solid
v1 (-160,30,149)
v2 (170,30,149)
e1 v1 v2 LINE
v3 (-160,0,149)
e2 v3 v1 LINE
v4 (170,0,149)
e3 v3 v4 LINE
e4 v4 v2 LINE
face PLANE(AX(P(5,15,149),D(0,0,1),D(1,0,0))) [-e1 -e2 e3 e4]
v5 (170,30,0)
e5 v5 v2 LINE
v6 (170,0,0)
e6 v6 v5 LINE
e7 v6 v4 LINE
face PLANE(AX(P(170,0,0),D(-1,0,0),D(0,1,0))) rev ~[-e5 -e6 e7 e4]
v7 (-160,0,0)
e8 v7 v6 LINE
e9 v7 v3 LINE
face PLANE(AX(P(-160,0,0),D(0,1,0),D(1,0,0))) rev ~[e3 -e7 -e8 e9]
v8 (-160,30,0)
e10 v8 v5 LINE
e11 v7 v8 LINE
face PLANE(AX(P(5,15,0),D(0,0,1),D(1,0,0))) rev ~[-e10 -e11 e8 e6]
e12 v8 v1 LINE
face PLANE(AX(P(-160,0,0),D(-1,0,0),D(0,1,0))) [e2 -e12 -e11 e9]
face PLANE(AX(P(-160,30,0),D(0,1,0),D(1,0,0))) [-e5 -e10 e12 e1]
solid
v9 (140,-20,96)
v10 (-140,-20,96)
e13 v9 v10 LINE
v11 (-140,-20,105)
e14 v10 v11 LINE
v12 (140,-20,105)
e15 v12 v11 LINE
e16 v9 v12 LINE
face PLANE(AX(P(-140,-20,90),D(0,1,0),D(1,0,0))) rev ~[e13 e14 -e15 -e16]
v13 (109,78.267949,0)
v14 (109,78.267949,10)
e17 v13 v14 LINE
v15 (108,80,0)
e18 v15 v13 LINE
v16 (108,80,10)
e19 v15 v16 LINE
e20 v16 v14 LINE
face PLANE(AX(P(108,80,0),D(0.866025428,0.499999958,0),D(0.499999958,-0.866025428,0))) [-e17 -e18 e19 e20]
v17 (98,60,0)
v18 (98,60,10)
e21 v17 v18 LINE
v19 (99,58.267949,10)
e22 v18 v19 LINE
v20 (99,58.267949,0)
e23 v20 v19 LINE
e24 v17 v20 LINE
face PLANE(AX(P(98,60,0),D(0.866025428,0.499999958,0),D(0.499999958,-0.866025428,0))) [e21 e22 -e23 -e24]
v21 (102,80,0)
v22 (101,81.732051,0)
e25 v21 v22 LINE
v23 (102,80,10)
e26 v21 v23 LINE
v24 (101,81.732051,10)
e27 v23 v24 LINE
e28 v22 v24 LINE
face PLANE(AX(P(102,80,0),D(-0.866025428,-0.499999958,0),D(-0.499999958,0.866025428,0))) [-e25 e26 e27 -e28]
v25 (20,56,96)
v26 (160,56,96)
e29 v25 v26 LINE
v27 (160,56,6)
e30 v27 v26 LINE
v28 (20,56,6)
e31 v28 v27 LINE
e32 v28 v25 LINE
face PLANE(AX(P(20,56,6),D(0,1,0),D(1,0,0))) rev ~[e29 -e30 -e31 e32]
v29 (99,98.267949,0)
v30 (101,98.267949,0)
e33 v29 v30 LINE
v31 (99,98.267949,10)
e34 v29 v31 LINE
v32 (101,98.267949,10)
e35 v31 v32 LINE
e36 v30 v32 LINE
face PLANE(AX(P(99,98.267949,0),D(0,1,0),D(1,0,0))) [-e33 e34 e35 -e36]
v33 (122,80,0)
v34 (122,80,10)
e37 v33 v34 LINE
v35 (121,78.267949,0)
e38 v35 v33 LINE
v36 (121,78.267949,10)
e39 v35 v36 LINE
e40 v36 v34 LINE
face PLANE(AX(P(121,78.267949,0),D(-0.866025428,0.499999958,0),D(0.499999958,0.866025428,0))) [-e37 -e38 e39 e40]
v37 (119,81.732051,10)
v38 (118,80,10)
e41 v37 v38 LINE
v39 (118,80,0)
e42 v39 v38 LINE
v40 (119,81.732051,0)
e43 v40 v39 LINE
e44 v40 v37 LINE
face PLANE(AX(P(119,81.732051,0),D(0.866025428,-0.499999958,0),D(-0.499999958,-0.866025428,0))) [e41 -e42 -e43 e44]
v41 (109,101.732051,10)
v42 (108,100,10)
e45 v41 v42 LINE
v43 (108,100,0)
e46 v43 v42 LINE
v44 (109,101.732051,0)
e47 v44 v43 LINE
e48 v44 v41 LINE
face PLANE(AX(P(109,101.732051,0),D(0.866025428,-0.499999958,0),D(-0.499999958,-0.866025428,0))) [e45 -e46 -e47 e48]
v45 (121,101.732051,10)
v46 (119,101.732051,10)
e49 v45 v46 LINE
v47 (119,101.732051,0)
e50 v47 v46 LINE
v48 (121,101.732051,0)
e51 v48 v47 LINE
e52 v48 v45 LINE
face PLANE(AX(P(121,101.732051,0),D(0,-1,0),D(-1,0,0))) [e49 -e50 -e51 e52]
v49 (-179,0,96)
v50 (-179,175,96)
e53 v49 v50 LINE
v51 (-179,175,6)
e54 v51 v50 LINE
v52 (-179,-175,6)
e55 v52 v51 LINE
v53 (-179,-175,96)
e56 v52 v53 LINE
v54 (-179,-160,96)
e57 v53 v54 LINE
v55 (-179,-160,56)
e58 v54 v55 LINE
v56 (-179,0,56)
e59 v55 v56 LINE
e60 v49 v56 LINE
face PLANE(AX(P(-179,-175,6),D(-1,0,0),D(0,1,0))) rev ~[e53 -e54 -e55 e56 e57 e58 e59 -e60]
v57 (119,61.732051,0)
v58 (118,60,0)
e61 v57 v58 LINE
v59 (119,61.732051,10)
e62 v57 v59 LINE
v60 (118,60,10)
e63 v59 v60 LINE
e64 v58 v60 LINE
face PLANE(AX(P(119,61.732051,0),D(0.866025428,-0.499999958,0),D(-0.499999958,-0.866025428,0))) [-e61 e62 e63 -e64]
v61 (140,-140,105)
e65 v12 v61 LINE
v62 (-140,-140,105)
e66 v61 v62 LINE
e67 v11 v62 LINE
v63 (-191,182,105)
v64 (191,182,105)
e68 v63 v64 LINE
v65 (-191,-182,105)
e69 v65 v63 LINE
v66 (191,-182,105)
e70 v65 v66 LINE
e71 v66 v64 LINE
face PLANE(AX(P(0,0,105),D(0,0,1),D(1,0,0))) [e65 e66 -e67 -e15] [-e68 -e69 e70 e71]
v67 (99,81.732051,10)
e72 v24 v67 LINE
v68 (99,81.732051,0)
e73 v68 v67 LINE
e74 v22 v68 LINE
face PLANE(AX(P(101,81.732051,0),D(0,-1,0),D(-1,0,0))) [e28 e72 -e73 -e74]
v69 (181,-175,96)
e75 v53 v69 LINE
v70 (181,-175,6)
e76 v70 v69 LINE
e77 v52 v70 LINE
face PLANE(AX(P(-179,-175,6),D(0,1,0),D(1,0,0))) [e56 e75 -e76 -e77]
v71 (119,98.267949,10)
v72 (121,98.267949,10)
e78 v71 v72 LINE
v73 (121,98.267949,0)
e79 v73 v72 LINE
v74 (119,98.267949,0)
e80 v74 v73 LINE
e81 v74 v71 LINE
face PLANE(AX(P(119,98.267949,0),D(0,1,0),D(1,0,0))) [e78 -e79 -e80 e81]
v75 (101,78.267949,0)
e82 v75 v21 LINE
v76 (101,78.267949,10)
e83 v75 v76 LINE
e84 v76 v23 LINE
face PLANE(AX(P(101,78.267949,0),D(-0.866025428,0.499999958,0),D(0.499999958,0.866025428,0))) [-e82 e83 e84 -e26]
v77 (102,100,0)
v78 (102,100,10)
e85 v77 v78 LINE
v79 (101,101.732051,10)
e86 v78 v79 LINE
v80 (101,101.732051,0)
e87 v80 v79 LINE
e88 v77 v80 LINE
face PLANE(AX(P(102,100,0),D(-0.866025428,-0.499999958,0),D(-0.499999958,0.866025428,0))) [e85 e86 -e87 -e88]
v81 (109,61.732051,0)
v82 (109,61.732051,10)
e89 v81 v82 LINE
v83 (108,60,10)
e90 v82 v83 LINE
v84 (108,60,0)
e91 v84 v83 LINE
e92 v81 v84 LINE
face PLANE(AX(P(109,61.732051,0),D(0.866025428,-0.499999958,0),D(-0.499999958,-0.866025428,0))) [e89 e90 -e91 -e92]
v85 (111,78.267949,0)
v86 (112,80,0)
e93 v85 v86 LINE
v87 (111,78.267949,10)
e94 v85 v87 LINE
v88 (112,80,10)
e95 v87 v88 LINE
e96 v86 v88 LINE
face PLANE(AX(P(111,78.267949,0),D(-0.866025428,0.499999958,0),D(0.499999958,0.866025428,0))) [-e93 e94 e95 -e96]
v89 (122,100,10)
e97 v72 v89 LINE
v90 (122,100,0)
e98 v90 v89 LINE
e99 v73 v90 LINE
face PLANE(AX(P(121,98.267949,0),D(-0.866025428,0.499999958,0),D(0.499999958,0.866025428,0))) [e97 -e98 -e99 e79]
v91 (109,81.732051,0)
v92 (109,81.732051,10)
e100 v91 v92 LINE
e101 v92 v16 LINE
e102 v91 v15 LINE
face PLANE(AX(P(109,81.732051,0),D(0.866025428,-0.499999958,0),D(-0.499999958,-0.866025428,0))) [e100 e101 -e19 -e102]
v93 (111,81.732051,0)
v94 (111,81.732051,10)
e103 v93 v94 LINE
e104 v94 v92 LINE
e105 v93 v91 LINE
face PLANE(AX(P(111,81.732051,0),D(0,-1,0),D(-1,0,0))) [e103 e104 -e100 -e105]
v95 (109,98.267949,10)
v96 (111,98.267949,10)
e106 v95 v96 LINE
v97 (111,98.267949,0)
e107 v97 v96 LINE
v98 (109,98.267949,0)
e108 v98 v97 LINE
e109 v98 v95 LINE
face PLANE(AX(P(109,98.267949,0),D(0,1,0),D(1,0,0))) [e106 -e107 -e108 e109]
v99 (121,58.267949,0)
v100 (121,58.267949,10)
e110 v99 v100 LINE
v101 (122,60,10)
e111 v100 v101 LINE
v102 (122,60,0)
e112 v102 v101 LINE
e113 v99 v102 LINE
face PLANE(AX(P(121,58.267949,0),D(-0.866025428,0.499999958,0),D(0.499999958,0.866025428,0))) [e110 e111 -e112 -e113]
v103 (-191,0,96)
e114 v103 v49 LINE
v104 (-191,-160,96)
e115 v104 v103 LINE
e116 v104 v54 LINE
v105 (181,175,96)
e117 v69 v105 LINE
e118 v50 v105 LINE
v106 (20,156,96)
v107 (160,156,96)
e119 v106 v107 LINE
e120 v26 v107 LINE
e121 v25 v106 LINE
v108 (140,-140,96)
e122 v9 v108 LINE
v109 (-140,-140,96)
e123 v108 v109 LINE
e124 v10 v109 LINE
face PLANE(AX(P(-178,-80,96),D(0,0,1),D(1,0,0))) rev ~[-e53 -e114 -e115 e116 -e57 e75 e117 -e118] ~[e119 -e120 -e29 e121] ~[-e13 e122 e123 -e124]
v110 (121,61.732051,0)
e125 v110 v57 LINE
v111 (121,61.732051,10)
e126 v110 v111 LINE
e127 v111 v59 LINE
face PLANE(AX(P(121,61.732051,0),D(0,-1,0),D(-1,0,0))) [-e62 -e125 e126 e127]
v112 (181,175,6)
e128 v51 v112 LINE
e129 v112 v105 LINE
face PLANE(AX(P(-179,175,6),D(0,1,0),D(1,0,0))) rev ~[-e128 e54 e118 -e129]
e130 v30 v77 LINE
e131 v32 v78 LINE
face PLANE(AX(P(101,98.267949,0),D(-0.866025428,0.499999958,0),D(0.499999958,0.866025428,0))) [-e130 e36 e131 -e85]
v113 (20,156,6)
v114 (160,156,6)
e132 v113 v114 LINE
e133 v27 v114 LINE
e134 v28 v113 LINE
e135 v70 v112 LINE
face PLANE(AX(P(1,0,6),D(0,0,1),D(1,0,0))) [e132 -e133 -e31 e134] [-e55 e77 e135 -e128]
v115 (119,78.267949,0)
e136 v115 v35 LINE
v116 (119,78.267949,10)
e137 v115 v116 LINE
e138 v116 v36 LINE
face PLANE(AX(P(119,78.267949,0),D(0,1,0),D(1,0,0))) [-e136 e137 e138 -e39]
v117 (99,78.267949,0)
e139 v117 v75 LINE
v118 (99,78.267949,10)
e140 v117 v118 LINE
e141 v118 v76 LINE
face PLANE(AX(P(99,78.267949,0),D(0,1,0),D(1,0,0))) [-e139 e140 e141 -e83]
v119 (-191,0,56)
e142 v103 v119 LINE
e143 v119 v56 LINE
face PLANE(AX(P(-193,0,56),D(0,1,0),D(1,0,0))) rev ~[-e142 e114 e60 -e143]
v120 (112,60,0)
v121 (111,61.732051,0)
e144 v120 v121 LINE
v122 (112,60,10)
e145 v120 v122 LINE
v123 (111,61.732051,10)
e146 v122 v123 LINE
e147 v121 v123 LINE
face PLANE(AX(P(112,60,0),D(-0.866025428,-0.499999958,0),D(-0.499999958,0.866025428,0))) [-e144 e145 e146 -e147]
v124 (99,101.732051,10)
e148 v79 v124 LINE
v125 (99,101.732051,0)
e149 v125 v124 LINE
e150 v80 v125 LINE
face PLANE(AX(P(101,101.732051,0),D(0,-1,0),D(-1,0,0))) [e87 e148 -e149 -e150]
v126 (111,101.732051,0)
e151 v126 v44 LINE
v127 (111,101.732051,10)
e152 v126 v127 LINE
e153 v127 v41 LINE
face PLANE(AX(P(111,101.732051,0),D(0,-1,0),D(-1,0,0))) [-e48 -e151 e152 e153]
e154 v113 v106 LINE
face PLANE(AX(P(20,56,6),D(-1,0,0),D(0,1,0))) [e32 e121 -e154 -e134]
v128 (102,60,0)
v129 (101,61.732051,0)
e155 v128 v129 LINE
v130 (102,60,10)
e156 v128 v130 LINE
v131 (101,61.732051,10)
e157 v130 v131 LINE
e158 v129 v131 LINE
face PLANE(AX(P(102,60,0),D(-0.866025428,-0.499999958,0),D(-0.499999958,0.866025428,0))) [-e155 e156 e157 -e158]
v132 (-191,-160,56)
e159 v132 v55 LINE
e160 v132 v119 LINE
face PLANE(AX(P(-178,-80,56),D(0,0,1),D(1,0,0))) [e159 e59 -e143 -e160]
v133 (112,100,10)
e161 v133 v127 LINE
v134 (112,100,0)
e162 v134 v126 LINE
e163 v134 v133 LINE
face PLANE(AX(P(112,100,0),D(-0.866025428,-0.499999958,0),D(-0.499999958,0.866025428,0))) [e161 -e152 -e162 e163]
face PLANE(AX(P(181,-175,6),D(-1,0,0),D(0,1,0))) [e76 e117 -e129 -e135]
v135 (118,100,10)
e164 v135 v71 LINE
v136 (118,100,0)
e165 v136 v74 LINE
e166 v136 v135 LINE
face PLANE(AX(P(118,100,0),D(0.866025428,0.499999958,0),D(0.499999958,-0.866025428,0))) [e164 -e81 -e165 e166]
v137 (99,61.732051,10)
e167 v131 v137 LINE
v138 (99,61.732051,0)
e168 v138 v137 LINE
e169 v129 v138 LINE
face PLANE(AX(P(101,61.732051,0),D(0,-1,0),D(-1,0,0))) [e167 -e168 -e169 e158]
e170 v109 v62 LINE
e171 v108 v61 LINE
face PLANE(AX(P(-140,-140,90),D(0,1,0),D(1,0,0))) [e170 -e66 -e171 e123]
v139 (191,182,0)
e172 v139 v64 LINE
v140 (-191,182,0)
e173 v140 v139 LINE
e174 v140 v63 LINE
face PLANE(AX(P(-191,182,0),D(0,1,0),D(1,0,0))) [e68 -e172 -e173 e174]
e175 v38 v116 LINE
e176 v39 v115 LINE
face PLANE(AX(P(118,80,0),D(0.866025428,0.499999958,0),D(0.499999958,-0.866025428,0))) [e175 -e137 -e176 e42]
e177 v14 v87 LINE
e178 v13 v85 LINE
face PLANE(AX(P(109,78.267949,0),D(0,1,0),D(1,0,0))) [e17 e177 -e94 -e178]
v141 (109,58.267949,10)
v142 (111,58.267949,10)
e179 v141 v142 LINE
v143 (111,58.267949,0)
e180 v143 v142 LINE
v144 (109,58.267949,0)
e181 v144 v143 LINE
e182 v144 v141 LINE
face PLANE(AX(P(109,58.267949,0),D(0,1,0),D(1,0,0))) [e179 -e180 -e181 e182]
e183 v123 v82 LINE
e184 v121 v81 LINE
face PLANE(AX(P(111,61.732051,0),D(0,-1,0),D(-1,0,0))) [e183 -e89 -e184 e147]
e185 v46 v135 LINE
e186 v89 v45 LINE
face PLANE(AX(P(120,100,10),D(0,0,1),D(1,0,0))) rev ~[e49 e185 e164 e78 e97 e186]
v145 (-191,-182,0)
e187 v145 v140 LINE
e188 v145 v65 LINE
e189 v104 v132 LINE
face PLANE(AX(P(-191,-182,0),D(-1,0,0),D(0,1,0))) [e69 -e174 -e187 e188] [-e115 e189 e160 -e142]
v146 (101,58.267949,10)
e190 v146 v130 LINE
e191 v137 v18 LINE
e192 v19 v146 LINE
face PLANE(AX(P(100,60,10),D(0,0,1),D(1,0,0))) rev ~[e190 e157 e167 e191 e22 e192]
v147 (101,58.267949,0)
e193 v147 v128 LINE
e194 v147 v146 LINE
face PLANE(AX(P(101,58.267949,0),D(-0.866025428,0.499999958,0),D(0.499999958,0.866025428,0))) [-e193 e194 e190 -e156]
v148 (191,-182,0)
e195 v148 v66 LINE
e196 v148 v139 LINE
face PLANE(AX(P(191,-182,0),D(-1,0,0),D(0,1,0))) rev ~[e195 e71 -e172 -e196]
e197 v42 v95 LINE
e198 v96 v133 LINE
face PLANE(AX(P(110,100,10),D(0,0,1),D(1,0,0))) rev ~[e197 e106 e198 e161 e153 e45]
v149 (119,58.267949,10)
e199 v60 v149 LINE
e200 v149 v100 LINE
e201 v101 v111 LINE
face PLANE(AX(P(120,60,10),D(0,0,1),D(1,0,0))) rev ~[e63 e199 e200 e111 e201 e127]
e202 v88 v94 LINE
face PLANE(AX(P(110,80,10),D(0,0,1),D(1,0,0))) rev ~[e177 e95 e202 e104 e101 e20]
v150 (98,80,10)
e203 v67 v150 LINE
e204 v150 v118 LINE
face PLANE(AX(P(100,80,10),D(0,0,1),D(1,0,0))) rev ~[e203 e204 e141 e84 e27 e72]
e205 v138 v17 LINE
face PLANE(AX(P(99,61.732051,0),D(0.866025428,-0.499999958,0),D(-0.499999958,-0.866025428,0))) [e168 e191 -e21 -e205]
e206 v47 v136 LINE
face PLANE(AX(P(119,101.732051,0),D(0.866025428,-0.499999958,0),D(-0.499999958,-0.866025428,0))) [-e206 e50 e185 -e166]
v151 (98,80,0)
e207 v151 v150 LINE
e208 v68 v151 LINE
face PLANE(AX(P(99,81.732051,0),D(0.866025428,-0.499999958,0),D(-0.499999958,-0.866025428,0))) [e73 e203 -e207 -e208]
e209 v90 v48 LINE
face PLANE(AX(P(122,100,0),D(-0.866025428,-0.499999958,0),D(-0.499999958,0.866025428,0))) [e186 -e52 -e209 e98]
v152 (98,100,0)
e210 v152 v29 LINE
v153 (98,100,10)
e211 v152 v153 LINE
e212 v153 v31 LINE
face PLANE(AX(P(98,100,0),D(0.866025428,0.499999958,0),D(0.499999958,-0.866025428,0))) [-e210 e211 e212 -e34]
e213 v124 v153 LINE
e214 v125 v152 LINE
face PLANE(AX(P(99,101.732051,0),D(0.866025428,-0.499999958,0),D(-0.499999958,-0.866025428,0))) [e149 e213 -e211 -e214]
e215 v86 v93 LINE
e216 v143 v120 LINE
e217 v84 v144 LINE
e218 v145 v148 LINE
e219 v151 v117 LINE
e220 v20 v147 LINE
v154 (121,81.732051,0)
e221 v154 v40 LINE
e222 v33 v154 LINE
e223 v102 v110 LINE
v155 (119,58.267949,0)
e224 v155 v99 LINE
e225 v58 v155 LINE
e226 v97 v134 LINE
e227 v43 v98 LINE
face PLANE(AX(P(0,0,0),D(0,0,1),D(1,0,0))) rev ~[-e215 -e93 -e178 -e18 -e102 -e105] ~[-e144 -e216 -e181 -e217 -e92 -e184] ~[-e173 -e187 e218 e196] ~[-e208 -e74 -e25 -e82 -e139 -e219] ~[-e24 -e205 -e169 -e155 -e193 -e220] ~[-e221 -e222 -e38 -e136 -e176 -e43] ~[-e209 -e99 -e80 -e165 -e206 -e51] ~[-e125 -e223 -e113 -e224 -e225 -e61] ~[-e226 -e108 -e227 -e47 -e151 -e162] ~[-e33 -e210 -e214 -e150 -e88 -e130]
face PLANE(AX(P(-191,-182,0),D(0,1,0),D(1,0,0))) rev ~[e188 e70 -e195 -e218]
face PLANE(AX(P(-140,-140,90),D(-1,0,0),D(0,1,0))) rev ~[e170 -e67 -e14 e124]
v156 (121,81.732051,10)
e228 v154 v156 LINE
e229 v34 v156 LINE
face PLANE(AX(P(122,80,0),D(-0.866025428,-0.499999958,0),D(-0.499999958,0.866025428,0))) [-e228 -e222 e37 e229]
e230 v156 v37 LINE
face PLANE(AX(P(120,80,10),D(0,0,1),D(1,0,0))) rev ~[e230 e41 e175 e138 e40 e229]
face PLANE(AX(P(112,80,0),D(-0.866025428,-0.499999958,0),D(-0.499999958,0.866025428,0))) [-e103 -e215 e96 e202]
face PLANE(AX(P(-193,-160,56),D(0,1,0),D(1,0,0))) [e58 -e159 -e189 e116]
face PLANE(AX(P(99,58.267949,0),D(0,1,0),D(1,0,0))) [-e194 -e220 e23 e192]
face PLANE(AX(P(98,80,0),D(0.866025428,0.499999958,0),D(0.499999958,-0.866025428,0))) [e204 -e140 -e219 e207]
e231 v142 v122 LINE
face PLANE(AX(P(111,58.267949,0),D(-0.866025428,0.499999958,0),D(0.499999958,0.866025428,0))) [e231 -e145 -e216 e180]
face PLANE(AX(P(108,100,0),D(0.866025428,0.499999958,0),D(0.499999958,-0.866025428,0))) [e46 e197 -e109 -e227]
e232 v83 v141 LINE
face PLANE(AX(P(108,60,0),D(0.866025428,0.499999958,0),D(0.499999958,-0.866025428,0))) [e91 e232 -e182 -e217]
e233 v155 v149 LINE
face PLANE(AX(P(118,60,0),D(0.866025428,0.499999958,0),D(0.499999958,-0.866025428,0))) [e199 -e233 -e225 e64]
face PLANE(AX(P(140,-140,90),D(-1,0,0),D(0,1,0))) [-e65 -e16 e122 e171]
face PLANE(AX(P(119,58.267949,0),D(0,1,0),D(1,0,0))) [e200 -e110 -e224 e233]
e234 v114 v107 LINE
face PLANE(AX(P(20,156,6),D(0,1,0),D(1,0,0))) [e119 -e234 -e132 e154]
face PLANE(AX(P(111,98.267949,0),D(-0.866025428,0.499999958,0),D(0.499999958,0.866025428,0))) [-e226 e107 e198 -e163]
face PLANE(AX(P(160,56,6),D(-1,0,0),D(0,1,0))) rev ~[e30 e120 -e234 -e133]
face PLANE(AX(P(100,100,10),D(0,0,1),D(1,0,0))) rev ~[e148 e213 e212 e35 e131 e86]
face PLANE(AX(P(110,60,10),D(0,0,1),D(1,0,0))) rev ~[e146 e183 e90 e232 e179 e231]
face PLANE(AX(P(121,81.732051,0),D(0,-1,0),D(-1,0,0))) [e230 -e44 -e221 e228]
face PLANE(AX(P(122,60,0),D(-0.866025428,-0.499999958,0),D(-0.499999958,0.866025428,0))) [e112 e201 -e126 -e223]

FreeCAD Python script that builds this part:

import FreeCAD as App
import Part
import Sketcher
from FreeCAD import Vector
Q = App.Units.Quantity

doc = App.newDocument("Part")
body = doc.addObject("PartDesign::Body", "Body")

# Sketch on XY plane
sketch1 = body.newObject("Sketcher::SketchObject", "Sketch")
sketch1.AttachmentSupport = (doc.getObject("XY_Plane"), [""])
sketch1.MapMode = "FlatFace"
sketch1.addGeometry(Part.LineSegment(Vector(-191, 182, 0), Vector(-191, -182, 0)), False)
sketch1.addGeometry(Part.LineSegment(Vector(-191, -182, 0), Vector(191, -182, 0)), False)
sketch1.addGeometry(Part.LineSegment(Vector(191, -182, 0), Vector(191, 182, 0)), False)
sketch1.addGeometry(Part.LineSegment(Vector(191, 182, 0), Vector(-191, 182, 0)), False)
sketch1.addConstraint(Sketcher.Constraint("Coincident", 0, 2, 1, 1))
sketch1.addConstraint(Sketcher.Constraint("Coincident", 1, 2, 2, 1))
sketch1.addConstraint(Sketcher.Constraint("Coincident", 2, 2, 3, 1))
sketch1.addConstraint(Sketcher.Constraint("Coincident", 3, 2, 0, 1))
sketch1.addConstraint(Sketcher.Constraint("Vertical", 0))
sketch1.addConstraint(Sketcher.Constraint("Horizontal", 1))
sketch1.addConstraint(Sketcher.Constraint("Vertical", 2))
sketch1.addConstraint(Sketcher.Constraint("Horizontal", 3))
sketch1.addConstraint(Sketcher.Constraint("Symmetric", 0, 2, 2, 2, -1, 1))
sketch1.addConstraint(Sketcher.Constraint("DistanceX", 1, 1, 1, 2, Q("382 mm")))
sketch1.addConstraint(Sketcher.Constraint("DistanceY", 0, 2, 0, 1, Q("364 mm")))
pad1 = body.newObject("PartDesign::Pad", "Pad")
pad1.Profile = sketch1
pad1.Length = 105

# Sketch on XY plane
sketch2 = body.newObject("Sketcher::SketchObject", "Sketch001")
sketch2.AttachmentSupport = (doc.getObject("XY_Plane"), [""])
sketch2.MapMode = "FlatFace"
sketch2.AttachmentOffset = App.Placement(Vector(0, 0, 6), App.Rotation())
sketch2.addGeometry(Part.LineSegment(Vector(-179, 175, 0), Vector(-179, -175, 0)), False)
sketch2.addGeometry(Part.LineSegment(Vector(-179, -175, 0), Vector(181, -175, 0)), False)
sketch2.addGeometry(Part.LineSegment(Vector(181, -175, 0), Vector(181, 175, 0)), False)
sketch2.addGeometry(Part.LineSegment(Vector(181, 175, 0), Vector(-179, 175, 0)), False)
sketch2.addConstraint(Sketcher.Constraint("Coincident", 0, 2, 1, 1))
sketch2.addConstraint(Sketcher.Constraint("Coincident", 1, 2, 2, 1))
sketch2.addConstraint(Sketcher.Constraint("Coincident", 2, 2, 3, 1))
sketch2.addConstraint(Sketcher.Constraint("Coincident", 3, 2, 0, 1))
sketch2.addConstraint(Sketcher.Constraint("Vertical", 0))
sketch2.addConstraint(Sketcher.Constraint("Horizontal", 1))
sketch2.addConstraint(Sketcher.Constraint("Vertical", 2))
sketch2.addConstraint(Sketcher.Constraint("Horizontal", 3))
sketch2.addConstraint(Sketcher.Constraint("DistanceX", 1, 1, 1, 2, Q("360 mm")))
sketch2.addConstraint(Sketcher.Constraint("DistanceY", 0, 2, 0, 1, Q("350 mm")))
sketch2.addConstraint(Sketcher.Constraint("DistanceX", 0, 2, -1, 1, Q("179 mm")))
sketch2.addConstraint(Sketcher.Constraint("DistanceY", 0, 2, -1, 1, Q("175 mm")))
pocket1 = body.newObject("PartDesign::Pocket", "Pocket")
pocket1.Profile = sketch2
pocket1.Length = 90
pocket1.Reversed = True

# Sketch on XY plane
sketch3 = body.newObject("Sketcher::SketchObject", "Sketch002")
sketch3.AttachmentSupport = (doc.getObject("XY_Plane"), [""])
sketch3.MapMode = "FlatFace"
sketch3.AttachmentOffset = App.Placement(Vector(0, 0, 90), App.Rotation())
sketch3.addGeometry(Part.LineSegment(Vector(-140, -20, 0), Vector(-140, -140, 0)), False)
sketch3.addGeometry(Part.LineSegment(Vector(-140, -140, 0), Vector(140, -140, 0)), False)
sketch3.addGeometry(Part.LineSegment(Vector(140, -140, 0), Vector(140, -20, 0)), False)
sketch3.addGeometry(Part.LineSegment(Vector(140, -20, 0), Vector(-140, -20, 0)), False)
sketch3.addConstraint(Sketcher.Constraint("Coincident", 0, 2, 1, 1))
sketch3.addConstraint(Sketcher.Constraint("Coincident", 1, 2, 2, 1))
sketch3.addConstraint(Sketcher.Constraint("Coincident", 2, 2, 3, 1))
sketch3.addConstraint(Sketcher.Constraint("Coincident", 3, 2, 0, 1))
sketch3.addConstraint(Sketcher.Constraint("Vertical", 0))
sketch3.addConstraint(Sketcher.Constraint("Horizontal", 1))
sketch3.addConstraint(Sketcher.Constraint("Vertical", 2))
sketch3.addConstraint(Sketcher.Constraint("Horizontal", 3))
sketch3.addConstraint(Sketcher.Constraint("DistanceX", 1, 1, 1, 2, Q("280 mm")))
sketch3.addConstraint(Sketcher.Constraint("DistanceY", 0, 2, 0, 1, Q("120 mm")))
sketch3.addConstraint(Sketcher.Constraint("DistanceX", 0, 2, -1, 1, Q("140 mm")))
sketch3.addConstraint(Sketcher.Constraint("DistanceY", 0, 2, -1, 1, Q("140 mm")))
pocket2 = body.newObject("PartDesign::Pocket", "Pocket001")
pocket2.Profile = sketch3
pocket2.Length = 50
pocket2.Reversed = True

# Sketch on XY plane
sketch4 = body.newObject("Sketcher::SketchObject", "Sketch003")
sketch4.AttachmentSupport = (doc.getObject("XY_Plane"), [""])
sketch4.MapMode = "FlatFace"
sketch4.AttachmentOffset = App.Placement(Vector(0, 0, 6), App.Rotation())
sketch4.addGeometry(Part.LineSegment(Vector(20, 156, 0), Vector(20, 56, 0)), False)
sketch4.addGeometry(Part.LineSegment(Vector(20, 56, 0), Vector(160, 56, 0)), False)
sketch4.addGeometry(Part.LineSegment(Vector(160, 56, 0), Vector(160, 156, 0)), False)
sketch4.addGeometry(Part.LineSegment(Vector(160, 156, 0), Vector(20, 156, 0)), False)
sketch4.addConstraint(Sketcher.Constraint("Coincident", 0, 2, 1, 1))
sketch4.addConstraint(Sketcher.Constraint("Coincident", 1, 2, 2, 1))
sketch4.addConstraint(Sketcher.Constraint("Coincident", 2, 2, 3, 1))
sketch4.addConstraint(Sketcher.Constraint("Coincident", 3, 2, 0, 1))
sketch4.addConstraint(Sketcher.Constraint("Vertical", 0))
sketch4.addConstraint(Sketcher.Constraint("Horizontal", 1))
sketch4.addConstraint(Sketcher.Constraint("Vertical", 2))
sketch4.addConstraint(Sketcher.Constraint("Horizontal", 3))
sketch4.addConstraint(Sketcher.Constraint("DistanceX", 1, 1, 1, 2, Q("140 mm")))
sketch4.addConstraint(Sketcher.Constraint("DistanceY", 0, 2, 0, 1, Q("100 mm")))
sketch4.addConstraint(Sketcher.Constraint("DistanceX", -1, 1, 0, 2, Q("20 mm")))
sketch4.addConstraint(Sketcher.Constraint("DistanceY", -1, 1, 0, 2, Q("56 mm")))
pad2 = body.newObject("PartDesign::Pad", "Pad001")
pad2.Profile = sketch4
pad2.Length = 90

# Sketch on XY plane
sketch5 = body.newObject("Sketcher::SketchObject", "Sketch004")
sketch5.AttachmentSupport = (doc.getObject("XY_Plane"), [""])
sketch5.MapMode = "FlatFace"
sketch5.AttachmentOffset = App.Placement(Vector(0, 0, 56), App.Rotation())
sketch5.addGeometry(Part.LineSegment(Vector(-193, 0, 0), Vector(-193, -160, 0)), False)
sketch5.addGeometry(Part.LineSegment(Vector(-193, -160, 0), Vector(-163, -160, 0)), False)
sketch5.addGeometry(Part.LineSegment(Vector(-163, -160, 0), Vector(-163, 0, 0)), False)
sketch5.addGeometry(Part.LineSegment(Vector(-163, 0, 0), Vector(-193, 0, 0)), False)
sketch5.addConstraint(Sketcher.Constraint("Coincident", 0, 2, 1, 1))
sketch5.addConstraint(Sketcher.Constraint("Coincident", 1, 2, 2, 1))
sketch5.addConstraint(Sketcher.Constraint("Coincident", 2, 2, 3, 1))
sketch5.addConstraint(Sketcher.Constraint("Coincident", 3, 2, 0, 1))
sketch5.addConstraint(Sketcher.Constraint("Vertical", 0))
sketch5.addConstraint(Sketcher.Constraint("Horizontal", 1))
sketch5.addConstraint(Sketcher.Constraint("Vertical", 2))
sketch5.addConstraint(Sketcher.Constraint("Horizontal", 3))
sketch5.addConstraint(Sketcher.Constraint("PointOnObject", 2, 2, -1))
sketch5.addConstraint(Sketcher.Constraint("DistanceX", 1, 1, 1, 2, Q("30 mm")))
sketch5.addConstraint(Sketcher.Constraint("DistanceY", 0, 2, 0, 1, Q("160 mm")))
sketch5.addConstraint(Sketcher.Constraint("DistanceX", 0, 2, -1, 1, Q("193 mm")))
pocket3 = body.newObject("PartDesign::Pocket", "Pocket002")
pocket3.Profile = sketch5
pocket3.Length = 40
pocket3.Reversed = True

# Sketch on XY plane
sketch6 = body.newObject("Sketcher::SketchObject", "Sketch005")
sketch6.AttachmentSupport = (doc.getObject("XY_Plane"), [""])
sketch6.MapMode = "FlatFace"
sketch6.addGeometry(Part.LineSegment(Vector(102, 100, 0), Vector(101, 101.7, 0)), False)
sketch6.addGeometry(Part.LineSegment(Vector(101, 101.7, 0), Vector(99, 101.7, 0)), False)
sketch6.addGeometry(Part.LineSegment(Vector(99, 101.7, 0), Vector(98, 100, 0)), False)
sketch6.addGeometry(Part.LineSegment(Vector(98, 100, 0), Vector(99, 98.3, 0)), False)
sketch6.addGeometry(Part.LineSegment(Vector(99, 98.3, 0), Vector(101, 98.3, 0)), False)
sketch6.addGeometry(Part.LineSegment(Vector(101, 98.3, 0), Vector(102, 100, 0)), False)
sketch6.addConstraint(Sketcher.Constraint("Coincident", 0, 2, 1, 1))
sketch6.addConstraint(Sketcher.Constraint("Coincident", 1, 2, 2, 1))
sketch6.addConstraint(Sketcher.Constraint("Coincident", 2, 2, 3, 1))
sketch6.addConstraint(Sketcher.Constraint("Coincident", 3, 2, 4, 1))
sketch6.addConstraint(Sketcher.Constraint("Coincident", 4, 2, 5, 1))
sketch6.addConstraint(Sketcher.Constraint("Coincident", 5, 2, 0, 1))
sketch6.addConstraint(Sketcher.Constraint("Horizontal", 1))
sketch6.addConstraint(Sketcher.Constraint("Horizontal", 4))
sketch6.addConstraint(Sketcher.Constraint("Parallel", 0, 3))
sketch6.addConstraint(Sketcher.Constraint("Parallel", 2, 5))
sketch6.addConstraint(Sketcher.Constraint("Horizontal", 2, 2, 5, 2))
sketch6.addConstraint(Sketcher.Constraint("Vertical", 1, 2, 3, 2))
sketch6.addConstraint(Sketcher.Constraint("Vertical", 0, 2, 4, 2))
sketch6.addConstraint(Sketcher.Constraint("DistanceX", 1, 2, 1, 1, Q("2 mm")))
sketch6.addConstraint(Sketcher.Constraint("Angle", 0, Q("119.999997 deg")))
sketch6.addConstraint(Sketcher.Constraint("Distance", 0, Q("2 mm")))
sketch6.addConstraint(Sketcher.Constraint("DistanceX", -1, 1, 0, 2, Q("101 mm")))
sketch6.addConstraint(Sketcher.Constraint("DistanceY", -1, 1, 2, 2, Q("100 mm")))
pocket4 = body.newObject("PartDesign::Pocket", "Pocket003")
pocket4.Profile = sketch6
pocket4.Length = 10
pocket4.Reversed = True

# Sketch on XY plane
sketch7 = body.newObject("Sketcher::SketchObject", "Sketch006")
sketch7.AttachmentSupport = (doc.getObject("XY_Plane"), [""])
sketch7.MapMode = "FlatFace"
sketch7.addGeometry(Part.LineSegment(Vector(112, 100, 0), Vector(111, 101.7, 0)), False)
sketch7.addGeometry(Part.LineSegment(Vector(111, 101.7, 0), Vector(109, 101.7, 0)), False)
sketch7.addGeometry(Part.LineSegment(Vector(109, 101.7, 0), Vector(108, 100, 0)), False)
sketch7.addGeometry(Part.LineSegment(Vector(108, 100, 0), Vector(109, 98.3, 0)), False)
sketch7.addGeometry(Part.LineSegment(Vector(109, 98.3, 0), Vector(111, 98.3, 0)), False)
sketch7.addGeometry(Part.LineSegment(Vector(111, 98.3, 0), Vector(112, 100, 0)), False)
sketch7.addConstraint(Sketcher.Constraint("Coincident", 0, 2, 1, 1))
sketch7.addConstraint(Sketcher.Constraint("Coincident", 1, 2, 2, 1))
sketch7.addConstraint(Sketcher.Constraint("Coincident", 2, 2, 3, 1))
sketch7.addConstraint(Sketcher.Constraint("Coincident", 3, 2, 4, 1))
sketch7.addConstraint(Sketcher.Constraint("Coincident", 4, 2, 5, 1))
sketch7.addConstraint(Sketcher.Constraint("Coincident", 5, 2, 0, 1))
sketch7.addConstraint(Sketcher.Constraint("Horizontal", 1))
sketch7.addConstraint(Sketcher.Constraint("Horizontal", 4))
sketch7.addConstraint(Sketcher.Constraint("Parallel", 0, 3))
sketch7.addConstraint(Sketcher.Constraint("Parallel", 2, 5))
sketch7.addConstraint(Sketcher.Constraint("Horizontal", 2, 2, 5, 2))
sketch7.addConstraint(Sketcher.Constraint("Vertical", 1, 2, 3, 2))
sketch7.addConstraint(Sketcher.Constraint("Vertical", 0, 2, 4, 2))
sketch7.addConstraint(Sketcher.Constraint("DistanceX", 1, 2, 1, 1, Q("2 mm")))
sketch7.addConstraint(Sketcher.Constraint("Angle", 0, Q("119.999997 deg")))
sketch7.addConstraint(Sketcher.Constraint("Distance", 0, Q("2 mm")))
sketch7.addConstraint(Sketcher.Constraint("DistanceX", -1, 1, 0, 2, Q("111 mm")))
sketch7.addConstraint(Sketcher.Constraint("DistanceY", -1, 1, 2, 2, Q("100 mm")))
pocket5 = body.newObject("PartDesign::Pocket", "Pocket004")
pocket5.Profile = sketch7
pocket5.Length = 10
pocket5.Reversed = True

# Sketch on XY plane
sketch8 = body.newObject("Sketcher::SketchObject", "Sketch007")
sketch8.AttachmentSupport = (doc.getObject("XY_Plane"), [""])
sketch8.MapMode = "FlatFace"
sketch8.addGeometry(Part.LineSegment(Vector(122, 100, 0), Vector(121, 101.7, 0)), False)
sketch8.addGeometry(Part.LineSegment(Vector(121, 101.7, 0), Vector(119, 101.7, 0)), False)
sketch8.addGeometry(Part.LineSegment(Vector(119, 101.7, 0), Vector(118, 100, 0)), False)
sketch8.addGeometry(Part.LineSegment(Vector(118, 100, 0), Vector(119, 98.3, 0)), False)
sketch8.addGeometry(Part.LineSegment(Vector(119, 98.3, 0), Vector(121, 98.3, 0)), False)
sketch8.addGeometry(Part.LineSegment(Vector(121, 98.3, 0), Vector(122, 100, 0)), False)
sketch8.addConstraint(Sketcher.Constraint("Coincident", 0, 2, 1, 1))
sketch8.addConstraint(Sketcher.Constraint("Coincident", 1, 2, 2, 1))
sketch8.addConstraint(Sketcher.Constraint("Coincident", 2, 2, 3, 1))
sketch8.addConstraint(Sketcher.Constraint("Coincident", 3, 2, 4, 1))
sketch8.addConstraint(Sketcher.Constraint("Coincident", 4, 2, 5, 1))
sketch8.addConstraint(Sketcher.Constraint("Coincident", 5, 2, 0, 1))
sketch8.addConstraint(Sketcher.Constraint("Horizontal", 1))
sketch8.addConstraint(Sketcher.Constraint("Horizontal", 4))
sketch8.addConstraint(Sketcher.Constraint("Parallel", 0, 3))
sketch8.addConstraint(Sketcher.Constraint("Parallel", 2, 5))
sketch8.addConstraint(Sketcher.Constraint("Horizontal", 2, 2, 5, 2))
sketch8.addConstraint(Sketcher.Constraint("Vertical", 1, 2, 3, 2))
sketch8.addConstraint(Sketcher.Constraint("Vertical", 0, 2, 4, 2))
sketch8.addConstraint(Sketcher.Constraint("DistanceX", 1, 2, 1, 1, Q("2 mm")))
sketch8.addConstraint(Sketcher.Constraint("Angle", 0, Q("119.999997 deg")))
sketch8.addConstraint(Sketcher.Constraint("Distance", 0, Q("2 mm")))
sketch8.addConstraint(Sketcher.Constraint("DistanceX", -1, 1, 0, 2, Q("121 mm")))
sketch8.addConstraint(Sketcher.Constraint("DistanceY", -1, 1, 2, 2, Q("100 mm")))
pocket6 = body.newObject("PartDesign::Pocket", "Pocket005")
pocket6.Profile = sketch8
pocket6.Length = 10
pocket6.Reversed = True

# Sketch on XY plane
sketch9 = body.newObject("Sketcher::SketchObject", "Sketch008")
sketch9.AttachmentSupport = (doc.getObject("XY_Plane"), [""])
sketch9.MapMode = "FlatFace"
sketch9.addGeometry(Part.LineSegment(Vector(102, 80, 0), Vector(101, 81.7, 0)), False)
sketch9.addGeometry(Part.LineSegment(Vector(101, 81.7, 0), Vector(99, 81.7, 0)), False)
sketch9.addGeometry(Part.LineSegment(Vector(99, 81.7, 0), Vector(98, 80, 0)), False)
sketch9.addGeometry(Part.LineSegment(Vector(98, 80, 0), Vector(99, 78.3, 0)), False)
sketch9.addGeometry(Part.LineSegment(Vector(99, 78.3, 0), Vector(101, 78.3, 0)), False)
sketch9.addGeometry(Part.LineSegment(Vector(101, 78.3, 0), Vector(102, 80, 0)), False)
sketch9.addConstraint(Sketcher.Constraint("Coincident", 0, 2, 1, 1))
sketch9.addConstraint(Sketcher.Constraint("Coincident", 1, 2, 2, 1))
sketch9.addConstraint(Sketcher.Constraint("Coincident", 2, 2, 3, 1))
sketch9.addConstraint(Sketcher.Constraint("Coincident", 3, 2, 4, 1))
sketch9.addConstraint(Sketcher.Constraint("Coincident", 4, 2, 5, 1))
sketch9.addConstraint(Sketcher.Constraint("Coincident", 5, 2, 0, 1))
sketch9.addConstraint(Sketcher.Constraint("Horizontal", 1))
sketch9.addConstraint(Sketcher.Constraint("Horizontal", 4))
sketch9.addConstraint(Sketcher.Constraint("Parallel", 0, 3))
sketch9.addConstraint(Sketcher.Constraint("Parallel", 2, 5))
sketch9.addConstraint(Sketcher.Constraint("Horizontal", 2, 2, 5, 2))
sketch9.addConstraint(Sketcher.Constraint("Vertical", 1, 2, 3, 2))
sketch9.addConstraint(Sketcher.Constraint("Vertical", 0, 2, 4, 2))
sketch9.addConstraint(Sketcher.Constraint("DistanceX", 1, 2, 1, 1, Q("2 mm")))
sketch9.addConstraint(Sketcher.Constraint("Angle", 0, Q("119.999997 deg")))
sketch9.addConstraint(Sketcher.Constraint("Distance", 0, Q("2 mm")))
sketch9.addConstraint(Sketcher.Constraint("DistanceX", -1, 1, 0, 2, Q("101 mm")))
sketch9.addConstraint(Sketcher.Constraint("DistanceY", -1, 1, 2, 2, Q("80 mm")))
pocket7 = body.newObject("PartDesign::Pocket", "Pocket006")
pocket7.Profile = sketch9
pocket7.Length = 10
pocket7.Reversed = True

# Sketch on XY plane
sketch10 = body.newObject("Sketcher::SketchObject", "Sketch009")
sketch10.AttachmentSupport = (doc.getObject("XY_Plane"), [""])
sketch10.MapMode = "FlatFace"
sketch10.addGeometry(Part.LineSegment(Vector(112, 80, 0), Vector(111, 81.7, 0)), False)
sketch10.addGeometry(Part.LineSegment(Vector(111, 81.7, 0), Vector(109, 81.7, 0)), False)
sketch10.addGeometry(Part.LineSegment(Vector(109, 81.7, 0), Vector(108, 80, 0)), False)
sketch10.addGeometry(Part.LineSegment(Vector(108, 80, 0), Vector(109, 78.3, 0)), False)
sketch10.addGeometry(Part.LineSegment(Vector(109, 78.3, 0), Vector(111, 78.3, 0)), False)
sketch10.addGeometry(Part.LineSegment(Vector(111, 78.3, 0), Vector(112, 80, 0)), False)
sketch10.addConstraint(Sketcher.Constraint("Coincident", 0, 2, 1, 1))
sketch10.addConstraint(Sketcher.Constraint("Coincident", 1, 2, 2, 1))
sketch10.addConstraint(Sketcher.Constraint("Coincident", 2, 2, 3, 1))
sketch10.addConstraint(Sketcher.Constraint("Coincident", 3, 2, 4, 1))
sketch10.addConstraint(Sketcher.Constraint("Coincident", 4, 2, 5, 1))
sketch10.addConstraint(Sketcher.Constraint("Coincident", 5, 2, 0, 1))
sketch10.addConstraint(Sketcher.Constraint("Horizontal", 1))
sketch10.addConstraint(Sketcher.Constraint("Horizontal", 4))
sketch10.addConstraint(Sketcher.Constraint("Parallel", 0, 3))
sketch10.addConstraint(Sketcher.Constraint("Parallel", 2, 5))
sketch10.addConstraint(Sketcher.Constraint("Horizontal", 2, 2, 5, 2))
sketch10.addConstraint(Sketcher.Constraint("Vertical", 1, 2, 3, 2))
sketch10.addConstraint(Sketcher.Constraint("Vertical", 0, 2, 4, 2))
sketch10.addConstraint(Sketcher.Constraint("DistanceX", 1, 2, 1, 1, Q("2 mm")))
sketch10.addConstraint(Sketcher.Constraint("Angle", 0, Q("119.999997 deg")))
sketch10.addConstraint(Sketcher.Constraint("Distance", 0, Q("2 mm")))
sketch10.addConstraint(Sketcher.Constraint("DistanceX", -1, 1, 0, 2, Q("111 mm")))
sketch10.addConstraint(Sketcher.Constraint("DistanceY", -1, 1, 2, 2, Q("80 mm")))
pocket8 = body.newObject("PartDesign::Pocket", "Pocket007")
pocket8.Profile = sketch10
pocket8.Length = 10
pocket8.Reversed = True

# Sketch on XY plane
sketch11 = body.newObject("Sketcher::SketchObject", "Sketch010")
sketch11.AttachmentSupport = (doc.getObject("XY_Plane"), [""])
sketch11.MapMode = "FlatFace"
sketch11.addGeometry(Part.LineSegment(Vector(122, 80, 0), Vector(121, 81.7, 0)), False)
sketch11.addGeometry(Part.LineSegment(Vector(121, 81.7, 0), Vector(119, 81.7, 0)), False)
sketch11.addGeometry(Part.LineSegment(Vector(119, 81.7, 0), Vector(118, 80, 0)), False)
sketch11.addGeometry(Part.LineSegment(Vector(118, 80, 0), Vector(119, 78.3, 0)), False)
sketch11.addGeometry(Part.LineSegment(Vector(119, 78.3, 0), Vector(121, 78.3, 0)), False)
sketch11.addGeometry(Part.LineSegment(Vector(121, 78.3, 0), Vector(122, 80, 0)), False)
sketch11.addConstraint(Sketcher.Constraint("Coincident", 0, 2, 1, 1))
sketch11.addConstraint(Sketcher.Constraint("Coincident", 1, 2, 2, 1))
sketch11.addConstraint(Sketcher.Constraint("Coincident", 2, 2, 3, 1))
sketch11.addConstraint(Sketcher.Constraint("Coincident", 3, 2, 4, 1))
sketch11.addConstraint(Sketcher.Constraint("Coincident", 4, 2, 5, 1))
sketch11.addConstraint(Sketcher.Constraint("Coincident", 5, 2, 0, 1))
sketch11.addConstraint(Sketcher.Constraint("Horizontal", 1))
sketch11.addConstraint(Sketcher.Constraint("Horizontal", 4))
sketch11.addConstraint(Sketcher.Constraint("Parallel", 0, 3))
sketch11.addConstraint(Sketcher.Constraint("Parallel", 2, 5))
sketch11.addConstraint(Sketcher.Constraint("Horizontal", 2, 2, 5, 2))
sketch11.addConstraint(Sketcher.Constraint("Vertical", 1, 2, 3, 2))
sketch11.addConstraint(Sketcher.Constraint("Vertical", 0, 2, 4, 2))
sketch11.addConstraint(Sketcher.Constraint("DistanceX", 1, 2, 1, 1, Q("2 mm")))
sketch11.addConstraint(Sketcher.Constraint("Angle", 0, Q("119.999997 deg")))
sketch11.addConstraint(Sketcher.Constraint("Distance", 0, Q("2 mm")))
sketch11.addConstraint(Sketcher.Constraint("DistanceX", -1, 1, 0, 2, Q("121 mm")))
sketch11.addConstraint(Sketcher.Constraint("DistanceY", -1, 1, 2, 2, Q("80 mm")))
pocket9 = body.newObject("PartDesign::Pocket", "Pocket008")
pocket9.Profile = sketch11
pocket9.Length = 10
pocket9.Reversed = True

# Sketch on XY plane
sketch12 = body.newObject("Sketcher::SketchObject", "Sketch011")
sketch12.AttachmentSupport = (doc.getObject("XY_Plane"), [""])
sketch12.MapMode = "FlatFace"
sketch12.addGeometry(Part.LineSegment(Vector(102, 60, 0), Vector(101, 61.7, 0)), False)
sketch12.addGeometry(Part.LineSegment(Vector(101, 61.7, 0), Vector(99, 61.7, 0)), False)
sketch12.addGeometry(Part.LineSegment(Vector(99, 61.7, 0), Vector(98, 60, 0)), False)
sketch12.addGeometry(Part.LineSegment(Vector(98, 60, 0), Vector(99, 58.3, 0)), False)
sketch12.addGeometry(Part.LineSegment(Vector(99, 58.3, 0), Vector(101, 58.3, 0)), False)
sketch12.addGeometry(Part.LineSegment(Vector(101, 58.3, 0), Vector(102, 60, 0)), False)
sketch12.addConstraint(Sketcher.Constraint("Coincident", 0, 2, 1, 1))
sketch12.addConstraint(Sketcher.Constraint("Coincident", 1, 2, 2, 1))
sketch12.addConstraint(Sketcher.Constraint("Coincident", 2, 2, 3, 1))
sketch12.addConstraint(Sketcher.Constraint("Coincident", 3, 2, 4, 1))
sketch12.addConstraint(Sketcher.Constraint("Coincident", 4, 2, 5, 1))
sketch12.addConstraint(Sketcher.Constraint("Coincident", 5, 2, 0, 1))
sketch12.addConstraint(Sketcher.Constraint("Horizontal", 1))
sketch12.addConstraint(Sketcher.Constraint("Horizontal", 4))
sketch12.addConstraint(Sketcher.Constraint("Parallel", 0, 3))
sketch12.addConstraint(Sketcher.Constraint("Parallel", 2, 5))
sketch12.addConstraint(Sketcher.Constraint("Horizontal", 2, 2, 5, 2))
sketch12.addConstraint(Sketcher.Constraint("Vertical", 1, 2, 3, 2))
sketch12.addConstraint(Sketcher.Constraint("Vertical", 0, 2, 4, 2))
sketch12.addConstraint(Sketcher.Constraint("DistanceX", 1, 2, 1, 1, Q("2 mm")))
sketch12.addConstraint(Sketcher.Constraint("Angle", 0, Q("119.999997 deg")))
sketch12.addConstraint(Sketcher.Constraint("Distance", 0, Q("2 mm")))
sketch12.addConstraint(Sketcher.Constraint("DistanceX", -1, 1, 0, 2, Q("101 mm")))
sketch12.addConstraint(Sketcher.Constraint("DistanceY", -1, 1, 2, 2, Q("60 mm")))
pocket10 = body.newObject("PartDesign::Pocket", "Pocket009")
pocket10.Profile = sketch12
pocket10.Length = 10
pocket10.Reversed = True

# Sketch on XY plane
sketch13 = body.newObject("Sketcher::SketchObject", "Sketch012")
sketch13.AttachmentSupport = (doc.getObject("XY_Plane"), [""])
sketch13.MapMode = "FlatFace"
sketch13.addGeometry(Part.LineSegment(Vector(112, 60, 0), Vector(111, 61.7, 0)), False)
sketch13.addGeometry(Part.LineSegment(Vector(111, 61.7, 0), Vector(109, 61.7, 0)), False)
sketch13.addGeometry(Part.LineSegment(Vector(109, 61.7, 0), Vector(108, 60, 0)), False)
sketch13.addGeometry(Part.LineSegment(Vector(108, 60, 0), Vector(109, 58.3, 0)), False)
sketch13.addGeometry(Part.LineSegment(Vector(109, 58.3, 0), Vector(111, 58.3, 0)), False)
sketch13.addGeometry(Part.LineSegment(Vector(111, 58.3, 0), Vector(112, 60, 0)), False)
sketch13.addConstraint(Sketcher.Constraint("Coincident", 0, 2, 1, 1))
sketch13.addConstraint(Sketcher.Constraint("Coincident", 1, 2, 2, 1))
sketch13.addConstraint(Sketcher.Constraint("Coincident", 2, 2, 3, 1))
sketch13.addConstraint(Sketcher.Constraint("Coincident", 3, 2, 4, 1))
sketch13.addConstraint(Sketcher.Constraint("Coincident", 4, 2, 5, 1))
sketch13.addConstraint(Sketcher.Constraint("Coincident", 5, 2, 0, 1))
sketch13.addConstraint(Sketcher.Constraint("Horizontal", 1))
sketch13.addConstraint(Sketcher.Constraint("Horizontal", 4))
sketch13.addConstraint(Sketcher.Constraint("Parallel", 0, 3))
sketch13.addConstraint(Sketcher.Constraint("Parallel", 2, 5))
sketch13.addConstraint(Sketcher.Constraint("Horizontal", 2, 2, 5, 2))
sketch13.addConstraint(Sketcher.Constraint("Vertical", 1, 2, 3, 2))
sketch13.addConstraint(Sketcher.Constraint("Vertical", 0, 2, 4, 2))
sketch13.addConstraint(Sketcher.Constraint("DistanceX", 1, 2, 1, 1, Q("2 mm")))
sketch13.addConstraint(Sketcher.Constraint("Angle", 0, Q("119.999997 deg")))
sketch13.addConstraint(Sketcher.Constraint("Distance", 0, Q("2 mm")))
sketch13.addConstraint(Sketcher.Constraint("DistanceX", -1, 1, 0, 2, Q("111 mm")))
sketch13.addConstraint(Sketcher.Constraint("DistanceY", -1, 1, 2, 2, Q("60 mm")))
pocket11 = body.newObject("PartDesign::Pocket", "Pocket010")
pocket11.Profile = sketch13
pocket11.Length = 10
pocket11.Reversed = True

# Sketch on XY plane
sketch14 = body.newObject("Sketcher::SketchObject", "Sketch013")
sketch14.AttachmentSupport = (doc.getObject("XY_Plane"), [""])
sketch14.MapMode = "FlatFace"
sketch14.addGeometry(Part.LineSegment(Vector(122, 60, 0), Vector(121, 61.7, 0)), False)
sketch14.addGeometry(Part.LineSegment(Vector(121, 61.7, 0), Vector(119, 61.7, 0)), False)
sketch14.addGeometry(Part.LineSegment(Vector(119, 61.7, 0), Vector(118, 60, 0)), False)
sketch14.addGeometry(Part.LineSegment(Vector(118, 60, 0), Vector(119, 58.3, 0)), False)
sketch14.addGeometry(Part.LineSegment(Vector(119, 58.3, 0), Vector(121, 58.3, 0)), False)
sketch14.addGeometry(Part.LineSegment(Vector(121, 58.3, 0), Vector(122, 60, 0)), False)
sketch14.addConstraint(Sketcher.Constraint("Coincident", 0, 2, 1, 1))
sketch14.addConstraint(Sketcher.Constraint("Coincident", 1, 2, 2, 1))
sketch14.addConstraint(Sketcher.Constraint("Coincident", 2, 2, 3, 1))
sketch14.addConstraint(Sketcher.Constraint("Coincident", 3, 2, 4, 1))
sketch14.addConstraint(Sketcher.Constraint("Coincident", 4, 2, 5, 1))
sketch14.addConstraint(Sketcher.Constraint("Coincident", 5, 2, 0, 1))
sketch14.addConstraint(Sketcher.Constraint("Horizontal", 1))
sketch14.addConstraint(Sketcher.Constraint("Horizontal", 4))
sketch14.addConstraint(Sketcher.Constraint("Parallel", 0, 3))
sketch14.addConstraint(Sketcher.Constraint("Parallel", 2, 5))
sketch14.addConstraint(Sketcher.Constraint("Horizontal", 2, 2, 5, 2))
sketch14.addConstraint(Sketcher.Constraint("Vertical", 1, 2, 3, 2))
sketch14.addConstraint(Sketcher.Constraint("Vertical", 0, 2, 4, 2))
sketch14.addConstraint(Sketcher.Constraint("DistanceX", 1, 2, 1, 1, Q("2 mm")))
sketch14.addConstraint(Sketcher.Constraint("Angle", 0, Q("119.999997 deg")))
sketch14.addConstraint(Sketcher.Constraint("Distance", 0, Q("2 mm")))
sketch14.addConstraint(Sketcher.Constraint("DistanceX", -1, 1, 0, 2, Q("121 mm")))
sketch14.addConstraint(Sketcher.Constraint("DistanceY", -1, 1, 2, 2, Q("60 mm")))
pocket12 = body.newObject("PartDesign::Pocket", "Pocket011")
pocket12.Profile = sketch14
pocket12.Length = 10
pocket12.Reversed = True
body2 = doc.addObject("PartDesign::Body", "Body001")

# Sketch on XY plane
sketch15 = body2.newObject("Sketcher::SketchObject", "Sketch014")
sketch15.AttachmentSupport = (doc.getObject("XY_Plane001"), [""])
sketch15.MapMode = "FlatFace"
sketch15.addGeometry(Part.LineSegment(Vector(-160, 30, 0), Vector(-160, 0, 0)), False)
sketch15.addGeometry(Part.LineSegment(Vector(-160, 0, 0), Vector(170, 0, 0)), False)
sketch15.addGeometry(Part.LineSegment(Vector(170, 0, 0), Vector(170, 30, 0)), False)
sketch15.addGeometry(Part.LineSegment(Vector(170, 30, 0), Vector(-160, 30, 0)), False)
sketch15.addConstraint(Sketcher.Constraint("Coincident", 0, 2, 1, 1))
sketch15.addConstraint(Sketcher.Constraint("Coincident", 1, 2, 2, 1))
sketch15.addConstraint(Sketcher.Constraint("Coincident", 2, 2, 3, 1))
sketch15.addConstraint(Sketcher.Constraint("Coincident", 3, 2, 0, 1))
sketch15.addConstraint(Sketcher.Constraint("Vertical", 0))
sketch15.addConstraint(Sketcher.Constraint("Horizontal", 1))
sketch15.addConstraint(Sketcher.Constraint("Vertical", 2))
sketch15.addConstraint(Sketcher.Constraint("Horizontal", 3))
sketch15.addConstraint(Sketcher.Constraint("PointOnObject", 0, 2, -1))
sketch15.addConstraint(Sketcher.Constraint("DistanceX", 1, 1, 1, 2, Q("330 mm")))
sketch15.addConstraint(Sketcher.Constraint("DistanceY", 0, 2, 0, 1, Q("30 mm")))
sketch15.addConstraint(Sketcher.Constraint("DistanceX", 0, 2, -1, 1, Q("160 mm")))
pad3 = body2.newObject("PartDesign::Pad", "Pad002")
pad3.Profile = sketch15
pad3.Length = 149

doc.recompute()
